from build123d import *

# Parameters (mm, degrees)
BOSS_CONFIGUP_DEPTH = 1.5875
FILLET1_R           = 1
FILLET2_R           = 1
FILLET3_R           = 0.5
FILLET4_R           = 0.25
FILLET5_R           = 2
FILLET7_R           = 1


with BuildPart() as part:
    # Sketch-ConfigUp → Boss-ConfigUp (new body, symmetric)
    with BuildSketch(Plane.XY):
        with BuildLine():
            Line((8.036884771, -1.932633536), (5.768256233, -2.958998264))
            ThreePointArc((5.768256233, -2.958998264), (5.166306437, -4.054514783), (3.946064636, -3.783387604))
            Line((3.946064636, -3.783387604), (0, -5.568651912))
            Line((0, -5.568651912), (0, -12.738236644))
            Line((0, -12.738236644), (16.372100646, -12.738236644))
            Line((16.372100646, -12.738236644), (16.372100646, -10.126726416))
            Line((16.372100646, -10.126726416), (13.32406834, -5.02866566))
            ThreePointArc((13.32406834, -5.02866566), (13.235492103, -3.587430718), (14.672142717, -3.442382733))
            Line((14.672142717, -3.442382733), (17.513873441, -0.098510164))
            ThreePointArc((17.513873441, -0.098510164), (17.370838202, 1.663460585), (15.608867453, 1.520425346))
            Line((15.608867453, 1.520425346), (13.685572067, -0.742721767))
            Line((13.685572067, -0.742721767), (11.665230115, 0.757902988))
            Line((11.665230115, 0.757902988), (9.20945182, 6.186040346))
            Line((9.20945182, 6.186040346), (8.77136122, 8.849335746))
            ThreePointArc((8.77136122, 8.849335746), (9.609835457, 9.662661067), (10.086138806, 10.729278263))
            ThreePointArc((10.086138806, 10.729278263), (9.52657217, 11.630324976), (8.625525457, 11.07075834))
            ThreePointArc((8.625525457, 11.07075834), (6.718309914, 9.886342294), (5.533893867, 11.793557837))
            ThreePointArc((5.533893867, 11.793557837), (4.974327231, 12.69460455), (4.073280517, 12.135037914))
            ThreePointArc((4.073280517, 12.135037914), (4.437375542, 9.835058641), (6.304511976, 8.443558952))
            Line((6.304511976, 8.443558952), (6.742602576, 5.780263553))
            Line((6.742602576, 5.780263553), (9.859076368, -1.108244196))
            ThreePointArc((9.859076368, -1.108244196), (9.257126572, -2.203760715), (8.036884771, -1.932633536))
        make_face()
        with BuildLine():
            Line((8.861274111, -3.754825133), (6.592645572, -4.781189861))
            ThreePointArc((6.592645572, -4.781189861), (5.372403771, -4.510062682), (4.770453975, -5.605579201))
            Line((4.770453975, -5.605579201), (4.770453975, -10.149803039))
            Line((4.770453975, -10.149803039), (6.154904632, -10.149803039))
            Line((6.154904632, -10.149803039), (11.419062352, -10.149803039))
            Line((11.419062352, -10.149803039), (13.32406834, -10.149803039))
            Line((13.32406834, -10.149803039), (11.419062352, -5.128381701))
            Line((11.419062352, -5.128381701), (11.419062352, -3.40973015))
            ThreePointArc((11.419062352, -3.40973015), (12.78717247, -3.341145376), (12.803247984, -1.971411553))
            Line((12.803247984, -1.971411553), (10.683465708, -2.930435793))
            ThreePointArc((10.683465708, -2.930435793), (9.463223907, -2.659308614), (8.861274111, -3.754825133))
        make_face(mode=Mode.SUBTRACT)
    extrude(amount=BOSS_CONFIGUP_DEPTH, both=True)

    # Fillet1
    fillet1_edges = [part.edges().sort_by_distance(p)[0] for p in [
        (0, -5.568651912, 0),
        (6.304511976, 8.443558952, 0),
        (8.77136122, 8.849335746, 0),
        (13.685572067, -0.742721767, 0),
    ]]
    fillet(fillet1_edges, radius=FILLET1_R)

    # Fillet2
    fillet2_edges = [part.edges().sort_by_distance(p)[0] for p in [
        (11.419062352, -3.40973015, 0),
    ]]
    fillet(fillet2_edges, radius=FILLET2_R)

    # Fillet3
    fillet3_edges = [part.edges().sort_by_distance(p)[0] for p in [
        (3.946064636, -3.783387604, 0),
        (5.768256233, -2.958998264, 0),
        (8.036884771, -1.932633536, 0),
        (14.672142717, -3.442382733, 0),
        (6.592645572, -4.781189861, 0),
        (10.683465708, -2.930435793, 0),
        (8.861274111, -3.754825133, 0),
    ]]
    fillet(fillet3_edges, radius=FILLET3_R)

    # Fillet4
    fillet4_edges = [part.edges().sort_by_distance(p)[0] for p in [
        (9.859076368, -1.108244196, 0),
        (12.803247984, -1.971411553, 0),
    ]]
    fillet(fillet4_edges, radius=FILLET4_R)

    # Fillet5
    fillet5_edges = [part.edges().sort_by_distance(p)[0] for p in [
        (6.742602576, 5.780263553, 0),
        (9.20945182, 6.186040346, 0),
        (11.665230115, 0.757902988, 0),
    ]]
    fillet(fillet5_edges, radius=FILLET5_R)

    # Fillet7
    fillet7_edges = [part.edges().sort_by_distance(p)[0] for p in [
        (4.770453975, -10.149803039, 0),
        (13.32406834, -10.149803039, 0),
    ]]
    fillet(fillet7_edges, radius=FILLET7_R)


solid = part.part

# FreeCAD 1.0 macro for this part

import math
import FreeCAD as App
import Part
import Sketcher
from FreeCAD import Vector
Q = App.Units.Quantity


def edges_at(feature, points):
    """Names of the edges that pass closest to the given points."""
    edges = feature.Shape.Edges
    near = lambda p: min(range(len(edges)), key=lambda i: edges[i].distToShape(Part.Vertex(*p))[0])
    return sorted({f"Edge{near(p) + 1}" for p in points})

doc = App.newDocument("Part")
body = doc.addObject("PartDesign::Body", "Body")

sketch1 = body.newObject("Sketcher::SketchObject", "Sketch")
sketch1.AttachmentSupport = (doc.getObject("XY_Plane"), [""])
sketch1.MapMode = "FlatFace"
sketch1.addGeometry([
    Part.LineSegment(Vector(8, -1.9, 0), Vector(5.8, -3, 0)),
    Part.ArcOfCircle(Part.Circle(Vector(4.7, -3.1, 0), Vector(0, 0, 1), 1), math.radians(-139), math.radians(8)),
    Part.LineSegment(Vector(3.9, -3.8, 0), Vector(0, -5.6, 0)),
    Part.LineSegment(Vector(0, -5.6, 0), Vector(0, -12.7, 0)),
    Part.LineSegment(Vector(0, -12.7, 0), Vector(16.4, -12.7, 0)),
    Part.LineSegment(Vector(16.4, -12.7, 0), Vector(16.4, -10.1, 0)),
    Part.LineSegment(Vector(16.4, -10.1, 0), Vector(13.3, -5, 0)),
    Part.ArcOfCircle(Part.Circle(Vector(14, -4.3, 0), Vector(0, 0, 1), 1), math.radians(52), math.radians(227)),
    Part.LineSegment(Vector(14.7, -3.4, 0), Vector(17.5, -0.1, 0)),
    Part.ArcOfCircle(Part.Circle(Vector(16.6, 0.7, 0), Vector(0, 0, 1), 1.2), math.radians(-40), math.radians(140)),
    Part.LineSegment(Vector(15.6, 1.5, 0), Vector(13.7, -0.7, 0)),
    Part.LineSegment(Vector(13.7, -0.7, 0), Vector(11.7, 0.8, 0)),
    Part.LineSegment(Vector(11.7, 0.8, 0), Vector(9.2, 6.2, 0)),
    Part.LineSegment(Vector(9.2, 6.2, 0), Vector(8.8, 8.8, 0)),
    Part.ArcOfCircle(Part.Circle(Vector(7.1, 11.4, 0), Vector(0, 0, 1), 3.1), math.radians(-57), math.radians(-13)),
    Part.ArcOfCircle(Part.Circle(Vector(9.4, 10.9, 0), Vector(0, 0, 1), 0.8), math.radians(-13), math.radians(167)),
    Part.ArcOfCircle(Part.Circle(Vector(7.1, 11.4, 0), Vector(0, 0, 1), 1.6), math.radians(167), math.radians(347)),
    Part.ArcOfCircle(Part.Circle(Vector(4.8, 12, 0), Vector(0, 0, 1), 0.8), math.radians(-13), math.radians(167)),
    Part.ArcOfCircle(Part.Circle(Vector(7.1, 11.4, 0), Vector(0, 0, 1), 3.1), math.radians(167), math.radians(255)),
    Part.LineSegment(Vector(6.3, 8.4, 0), Vector(6.7, 5.8, 0)),
    Part.LineSegment(Vector(6.7, 5.8, 0), Vector(9.9, -1.1, 0)),
    Part.ArcOfCircle(Part.Circle(Vector(8.8, -1.3, 0), Vector(0, 0, 1), 1), math.radians(-139), math.radians(8)),
    Part.LineSegment(Vector(6.6, -4.8, 0), Vector(8.9, -3.8, 0)),
    Part.ArcOfCircle(Part.Circle(Vector(9.9, -3.6, 0), Vector(0, 0, 1), 1), math.radians(41), math.radians(188)),
    Part.LineSegment(Vector(10.7, -2.9, 0), Vector(12.8, -2, 0)),
    Part.ArcOfCircle(Part.Circle(Vector(12.1, -2.6, 0), Vector(0, 0, 1), 1), math.radians(-130), math.radians(43)),
    Part.LineSegment(Vector(11.4, -3.4, 0), Vector(11.4, -5.1, 0)),
    Part.LineSegment(Vector(11.4, -5.1, 0), Vector(13.3, -10.1, 0)),
    Part.LineSegment(Vector(13.3, -10.1, 0), Vector(4.8, -10.1, 0)),
    Part.LineSegment(Vector(4.8, -10.1, 0), Vector(4.8, -5.6, 0)),
    Part.ArcOfCircle(Part.Circle(Vector(5.8, -5.5, 0), Vector(0, 0, 1), 1), math.radians(41), math.radians(188)),
], False)
sketch1.addConstraint([
    Sketcher.Constraint("Coincident", 0, 2, 1, 2),
    Sketcher.Constraint("Coincident", 1, 1, 2, 1),
    Sketcher.Constraint("Coincident", 2, 2, 3, 1),
    Sketcher.Constraint("Coincident", 3, 2, 4, 1),
    Sketcher.Constraint("Coincident", 4, 2, 5, 1),
    Sketcher.Constraint("Coincident", 5, 2, 6, 1),
    Sketcher.Constraint("Coincident", 6, 2, 7, 2),
    Sketcher.Constraint("Coincident", 7, 1, 8, 1),
    Sketcher.Constraint("Tangent", 8, 2, 9, 1),
    Sketcher.Constraint("Tangent", 9, 2, 10, 1),
    Sketcher.Constraint("Coincident", 10, 2, 11, 1),
    Sketcher.Constraint("Coincident", 11, 2, 12, 1),
    Sketcher.Constraint("Coincident", 12, 2, 13, 1),
    Sketcher.Constraint("Coincident", 13, 2, 14, 1),
    Sketcher.Constraint("Tangent", 14, 2, 15, 1),
    Sketcher.Constraint("Tangent", 15, 2, 16, 2),
    Sketcher.Constraint("Tangent", 16, 1, 17, 1),
    Sketcher.Constraint("Tangent", 17, 2, 18, 1),
    Sketcher.Constraint("Coincident", 18, 2, 19, 1),
    Sketcher.Constraint("Coincident", 19, 2, 20, 1),
    Sketcher.Constraint("Coincident", 20, 2, 21, 2),
    Sketcher.Constraint("Coincident", 21, 1, 0, 1),
    Sketcher.Constraint("Coincident", 22, 2, 23, 2),
    Sketcher.Constraint("Coincident", 23, 1, 24, 1),
    Sketcher.Constraint("Coincident", 24, 2, 25, 2),
    Sketcher.Constraint("Coincident", 25, 1, 26, 1),
    Sketcher.Constraint("Coincident", 26, 2, 27, 1),
    Sketcher.Constraint("Coincident", 27, 2, 28, 1),
    Sketcher.Constraint("Coincident", 28, 2, 29, 1),
    Sketcher.Constraint("Coincident", 29, 2, 30, 2),
    Sketcher.Constraint("Coincident", 30, 1, 22, 1),
    Sketcher.Constraint("Vertical", 3),
    Sketcher.Constraint("Horizontal", 4),
    Sketcher.Constraint("Vertical", 5),
    Sketcher.Constraint("Vertical", 26),
    Sketcher.Constraint("Horizontal", 28),
    Sketcher.Constraint("Vertical", 29),
    Sketcher.Constraint("Coincident", 16, 3, 14, 3),
    Sketcher.Constraint("Coincident", 18, 3, 14, 3),
    Sketcher.Constraint("Equal", 1, 7),
    Sketcher.Constraint("Equal", 15, 17),
    Sketcher.Constraint("Equal", 7, 21),
    Sketcher.Constraint("Equal", 21, 23),
    Sketcher.Constraint("Equal", 23, 30),
    Sketcher.Constraint("PointOnObject", 2, 2, -2),
    Sketcher.Constraint("Parallel", 0, 2),
    Sketcher.Constraint("Parallel", 8, 10),
    Sketcher.Constraint("Perpendicular", 2, 12),
    Sketcher.Constraint("Parallel", 13, 19),
    Sketcher.Constraint("Parallel", 12, 20),
    Sketcher.Constraint("Perpendicular", 20, 22),
    Sketcher.Constraint("Parallel", 22, 24),
    Sketcher.Constraint("Vertical", 6, 2, 27, 2),
    Sketcher.Constraint("Equal", 13, 19),
    Sketcher.Constraint("Equal", 0, 22),
    Sketcher.Constraint("Radius", 25, Q("1 mm")),
    Sketcher.Constraint("Radius", 9, Q("1.25 mm")),
    Sketcher.Constraint("Radius", 15, Q("0.75 mm")),
    Sketcher.Constraint("Radius", 14, Q("3.0875 mm")),
    Sketcher.Constraint("Distance", 0, Q("2.49 mm")),
    Sketcher.Constraint("Distance", 10, Q("2.97 mm")),
    Sketcher.Constraint("DistanceY", 18, 2, 16, 1, Q("3.349999 mm")),
    Sketcher.Constraint("DistanceX", 4, 1, 4, 2, Q("16.372101 mm")),
    Sketcher.Constraint("DistanceY", 0, 2, -1, 1, Q("2.958998 mm")),
    Sketcher.Constraint("Radius", 1, Q("1.041667 mm")),
    Sketcher.Constraint("DistanceY", 5, 2, 25, 3, Q("7.478999 mm")),
    Sketcher.Constraint("DistanceY", 5, 1, 5, 2, Q("2.61151 mm")),
    Sketcher.Constraint("DistanceY", 26, 2, 26, 1, Q("1.718652 mm")),
    Sketcher.Constraint("DistanceY", 9, 3, 14, 3, Q("10.7212 mm")),
    Sketcher.Constraint("DistanceX", 1, 3, 25, 3, Q("7.3297 mm")),
    Sketcher.Constraint("DistanceX", 0, 2, 21, 3, Q("3.059501 mm")),
    Sketcher.Constraint("DistanceY", 6, 2, 23, 3, Q("1.420299 mm")),
    Sketcher.Constraint("DistanceX", 7, 3, 7, 1, Q("0.642898 mm")),
    Sketcher.Constraint("DistanceX", 10, 2, 9, 3, Q("2.875798 mm")),
    Sketcher.Constraint("DistanceY", 15, 2, 14, 3, Q("0.3614 mm")),
    Sketcher.Constraint("DistanceY", 16, 3, 16, 1, Q("0.3614 mm")),
    Sketcher.Constraint("Distance", 2, Q("4.331119 mm")),
    Sketcher.Constraint("Distance", 8, Q("4.38827 mm")),
    Sketcher.Constraint("Distance", 12, Q("5.957812 mm")),
    Sketcher.Constraint("Distance", 24, Q("2.326629 mm")),
    Sketcher.Constraint("DistanceX", 28, 2, 28, 1, Q("8.553614 mm")),
    Sketcher.Constraint("DistanceY", 3, 2, 3, 1, Q("7.169585 mm")),
    Sketcher.Constraint("DistanceY", 29, 1, 29, 2, Q("4.544224 mm")),
    Sketcher.Constraint("DistanceX", -1, 1, 9, 3, Q("16.56137 mm")),
    Sketcher.Constraint("DistanceX", -1, 1, 14, 3, Q("7.07971 mm")),
    Sketcher.Constraint("DistanceY", -1, 1, 14, 3, Q("11.432158 mm")),
    Sketcher.Constraint("DistanceY", 30, 3, -1, 1, Q("5.459121 mm")),
    Sketcher.Constraint("DistanceY", 2, 2, -1, 1, Q("5.568652 mm")),
    Sketcher.Constraint("DistanceX", -1, 1, 6, 2, Q("13.324068 mm")),
    Sketcher.Constraint("DistanceX", -1, 1, 11, 2, Q("11.66523 mm")),
    Sketcher.Constraint("DistanceX", -1, 1, 12, 2, Q("9.209452 mm")),
    Sketcher.Constraint("DistanceY", -1, 1, 12, 2, Q("6.18604 mm")),
    Sketcher.Constraint("DistanceX", -1, 1, 13, 2, Q("8.771361 mm")),
    Sketcher.Constraint("DistanceY", 24, 2, -1, 1, Q("1.971412 mm")),
    Sketcher.Constraint("DistanceY", 25, 1, -1, 1, Q("3.40973 mm")),
    Sketcher.Constraint("DistanceY", 29, 2, -1, 1, Q("5.605579 mm")),
    Sketcher.Constraint("DistanceY", 30, 1, -1, 1, Q("4.78119 mm")),
])
pad1 = body.newObject("PartDesign::Pad", "Pad")
pad1.Profile = sketch1
pad1.Length = 3.175
pad1.Midplane = True
doc.recompute()

fillet = body.newObject("PartDesign::Fillet", "Fillet")
fillet.Base = (pad1, edges_at(pad1, [
    (0, -5.569, 0),
    (6.305, 8.444, 0),
    (8.771, 8.849, 0),
    (13.686, -0.743, 0),
]))
fillet.Radius = 1
doc.recompute()

fillet2 = body.newObject("PartDesign::Fillet", "Fillet001")
fillet2.Base = (fillet, edges_at(fillet, [(11.419, -3.41, 0)]))
fillet2.Radius = 1
doc.recompute()

fillet3 = body.newObject("PartDesign::Fillet", "Fillet002")
fillet3.Base = (fillet2, edges_at(fillet2, [
    (3.946, -3.783, 0),
    (5.768, -2.959, 0),
    (8.037, -1.933, 0),
    (14.672, -3.442, 0),
    (6.593, -4.781, 0),
    (10.683, -2.93, 0),
    (8.861, -3.755, 0),
]))
fillet3.Radius = 0.5
doc.recompute()

fillet4 = body.newObject("PartDesign::Fillet", "Fillet003")
fillet4.Base = (fillet3, edges_at(fillet3, [(9.859, -1.108, 0), (12.803, -1.971, 0)]))
fillet4.Radius = 0.25
doc.recompute()

fillet5 = body.newObject("PartDesign::Fillet", "Fillet004")
fillet5.Base = (fillet4, edges_at(fillet4, [(6.743, 5.78, 0), (9.209, 6.186, 0), (11.665, 0.758, 0)]))
fillet5.Radius = 2
doc.recompute()

fillet6 = body.newObject("PartDesign::Fillet", "Fillet005")
fillet6.Base = (fillet5, edges_at(fillet5, [(4.77, -10.15, 0), (13.324, -10.15, 0)]))
fillet6.Radius = 1

doc.recompute()
